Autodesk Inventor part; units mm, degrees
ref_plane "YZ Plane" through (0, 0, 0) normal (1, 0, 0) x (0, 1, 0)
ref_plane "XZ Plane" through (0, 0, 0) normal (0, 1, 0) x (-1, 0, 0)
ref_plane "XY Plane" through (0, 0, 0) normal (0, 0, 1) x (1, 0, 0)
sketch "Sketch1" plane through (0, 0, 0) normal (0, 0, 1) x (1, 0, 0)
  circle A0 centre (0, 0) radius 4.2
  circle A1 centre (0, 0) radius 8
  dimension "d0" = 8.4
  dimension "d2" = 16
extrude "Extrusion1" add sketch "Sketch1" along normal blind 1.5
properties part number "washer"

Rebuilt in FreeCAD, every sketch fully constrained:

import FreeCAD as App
import Part
import Sketcher
from FreeCAD import Vector
Q = App.Units.Quantity

doc = App.newDocument("Part")
params = doc.addObject("Spreadsheet::Sheet", "Params")
for row, (alias, value) in enumerate([
    ("sketch1_diameter", "16 mm"),
    ("sketch1_diameter2", "8.4 mm"),
    ("pad1_length", "1.5 mm"),
], start=1):
    params.set(f"A{row}", alias)
    params.set(f"B{row}", "=" + value)
    params.setAlias(f"B{row}", alias)

body = doc.addObject("PartDesign::Body", "Body")

# Sketch on XY plane
sketch1 = body.newObject("Sketcher::SketchObject", "Sketch")
sketch1.AttachmentSupport = (doc.getObject("XY_Plane"), [""])
sketch1.MapMode = "FlatFace"
sketch1.addGeometry(Part.Circle(Vector(0, 0, 0), Vector(0, 0, 1), 8), False)
sketch1.addGeometry(Part.Circle(Vector(0, 0, 0), Vector(0, 0, 1), 4.2), False)
sketch1.addConstraint(Sketcher.Constraint("Coincident", 0, 3, -1, 1))
sketch1.addConstraint(Sketcher.Constraint("Coincident", 1, 3, -1, 1))
sketch1.addConstraint(Sketcher.Constraint("Diameter", 0, Q("16 mm")))
sketch1.addConstraint(Sketcher.Constraint("Diameter", 1, Q("8.4 mm")))
sketch1.setExpression("Constraints[2]", "Params.sketch1_diameter")
sketch1.setExpression("Constraints[3]", "Params.sketch1_diameter2")
pad1 = body.newObject("PartDesign::Pad", "Pad")
pad1.Profile = sketch1
pad1.setExpression("Length", "Params.pad1_length")

doc.recompute()
